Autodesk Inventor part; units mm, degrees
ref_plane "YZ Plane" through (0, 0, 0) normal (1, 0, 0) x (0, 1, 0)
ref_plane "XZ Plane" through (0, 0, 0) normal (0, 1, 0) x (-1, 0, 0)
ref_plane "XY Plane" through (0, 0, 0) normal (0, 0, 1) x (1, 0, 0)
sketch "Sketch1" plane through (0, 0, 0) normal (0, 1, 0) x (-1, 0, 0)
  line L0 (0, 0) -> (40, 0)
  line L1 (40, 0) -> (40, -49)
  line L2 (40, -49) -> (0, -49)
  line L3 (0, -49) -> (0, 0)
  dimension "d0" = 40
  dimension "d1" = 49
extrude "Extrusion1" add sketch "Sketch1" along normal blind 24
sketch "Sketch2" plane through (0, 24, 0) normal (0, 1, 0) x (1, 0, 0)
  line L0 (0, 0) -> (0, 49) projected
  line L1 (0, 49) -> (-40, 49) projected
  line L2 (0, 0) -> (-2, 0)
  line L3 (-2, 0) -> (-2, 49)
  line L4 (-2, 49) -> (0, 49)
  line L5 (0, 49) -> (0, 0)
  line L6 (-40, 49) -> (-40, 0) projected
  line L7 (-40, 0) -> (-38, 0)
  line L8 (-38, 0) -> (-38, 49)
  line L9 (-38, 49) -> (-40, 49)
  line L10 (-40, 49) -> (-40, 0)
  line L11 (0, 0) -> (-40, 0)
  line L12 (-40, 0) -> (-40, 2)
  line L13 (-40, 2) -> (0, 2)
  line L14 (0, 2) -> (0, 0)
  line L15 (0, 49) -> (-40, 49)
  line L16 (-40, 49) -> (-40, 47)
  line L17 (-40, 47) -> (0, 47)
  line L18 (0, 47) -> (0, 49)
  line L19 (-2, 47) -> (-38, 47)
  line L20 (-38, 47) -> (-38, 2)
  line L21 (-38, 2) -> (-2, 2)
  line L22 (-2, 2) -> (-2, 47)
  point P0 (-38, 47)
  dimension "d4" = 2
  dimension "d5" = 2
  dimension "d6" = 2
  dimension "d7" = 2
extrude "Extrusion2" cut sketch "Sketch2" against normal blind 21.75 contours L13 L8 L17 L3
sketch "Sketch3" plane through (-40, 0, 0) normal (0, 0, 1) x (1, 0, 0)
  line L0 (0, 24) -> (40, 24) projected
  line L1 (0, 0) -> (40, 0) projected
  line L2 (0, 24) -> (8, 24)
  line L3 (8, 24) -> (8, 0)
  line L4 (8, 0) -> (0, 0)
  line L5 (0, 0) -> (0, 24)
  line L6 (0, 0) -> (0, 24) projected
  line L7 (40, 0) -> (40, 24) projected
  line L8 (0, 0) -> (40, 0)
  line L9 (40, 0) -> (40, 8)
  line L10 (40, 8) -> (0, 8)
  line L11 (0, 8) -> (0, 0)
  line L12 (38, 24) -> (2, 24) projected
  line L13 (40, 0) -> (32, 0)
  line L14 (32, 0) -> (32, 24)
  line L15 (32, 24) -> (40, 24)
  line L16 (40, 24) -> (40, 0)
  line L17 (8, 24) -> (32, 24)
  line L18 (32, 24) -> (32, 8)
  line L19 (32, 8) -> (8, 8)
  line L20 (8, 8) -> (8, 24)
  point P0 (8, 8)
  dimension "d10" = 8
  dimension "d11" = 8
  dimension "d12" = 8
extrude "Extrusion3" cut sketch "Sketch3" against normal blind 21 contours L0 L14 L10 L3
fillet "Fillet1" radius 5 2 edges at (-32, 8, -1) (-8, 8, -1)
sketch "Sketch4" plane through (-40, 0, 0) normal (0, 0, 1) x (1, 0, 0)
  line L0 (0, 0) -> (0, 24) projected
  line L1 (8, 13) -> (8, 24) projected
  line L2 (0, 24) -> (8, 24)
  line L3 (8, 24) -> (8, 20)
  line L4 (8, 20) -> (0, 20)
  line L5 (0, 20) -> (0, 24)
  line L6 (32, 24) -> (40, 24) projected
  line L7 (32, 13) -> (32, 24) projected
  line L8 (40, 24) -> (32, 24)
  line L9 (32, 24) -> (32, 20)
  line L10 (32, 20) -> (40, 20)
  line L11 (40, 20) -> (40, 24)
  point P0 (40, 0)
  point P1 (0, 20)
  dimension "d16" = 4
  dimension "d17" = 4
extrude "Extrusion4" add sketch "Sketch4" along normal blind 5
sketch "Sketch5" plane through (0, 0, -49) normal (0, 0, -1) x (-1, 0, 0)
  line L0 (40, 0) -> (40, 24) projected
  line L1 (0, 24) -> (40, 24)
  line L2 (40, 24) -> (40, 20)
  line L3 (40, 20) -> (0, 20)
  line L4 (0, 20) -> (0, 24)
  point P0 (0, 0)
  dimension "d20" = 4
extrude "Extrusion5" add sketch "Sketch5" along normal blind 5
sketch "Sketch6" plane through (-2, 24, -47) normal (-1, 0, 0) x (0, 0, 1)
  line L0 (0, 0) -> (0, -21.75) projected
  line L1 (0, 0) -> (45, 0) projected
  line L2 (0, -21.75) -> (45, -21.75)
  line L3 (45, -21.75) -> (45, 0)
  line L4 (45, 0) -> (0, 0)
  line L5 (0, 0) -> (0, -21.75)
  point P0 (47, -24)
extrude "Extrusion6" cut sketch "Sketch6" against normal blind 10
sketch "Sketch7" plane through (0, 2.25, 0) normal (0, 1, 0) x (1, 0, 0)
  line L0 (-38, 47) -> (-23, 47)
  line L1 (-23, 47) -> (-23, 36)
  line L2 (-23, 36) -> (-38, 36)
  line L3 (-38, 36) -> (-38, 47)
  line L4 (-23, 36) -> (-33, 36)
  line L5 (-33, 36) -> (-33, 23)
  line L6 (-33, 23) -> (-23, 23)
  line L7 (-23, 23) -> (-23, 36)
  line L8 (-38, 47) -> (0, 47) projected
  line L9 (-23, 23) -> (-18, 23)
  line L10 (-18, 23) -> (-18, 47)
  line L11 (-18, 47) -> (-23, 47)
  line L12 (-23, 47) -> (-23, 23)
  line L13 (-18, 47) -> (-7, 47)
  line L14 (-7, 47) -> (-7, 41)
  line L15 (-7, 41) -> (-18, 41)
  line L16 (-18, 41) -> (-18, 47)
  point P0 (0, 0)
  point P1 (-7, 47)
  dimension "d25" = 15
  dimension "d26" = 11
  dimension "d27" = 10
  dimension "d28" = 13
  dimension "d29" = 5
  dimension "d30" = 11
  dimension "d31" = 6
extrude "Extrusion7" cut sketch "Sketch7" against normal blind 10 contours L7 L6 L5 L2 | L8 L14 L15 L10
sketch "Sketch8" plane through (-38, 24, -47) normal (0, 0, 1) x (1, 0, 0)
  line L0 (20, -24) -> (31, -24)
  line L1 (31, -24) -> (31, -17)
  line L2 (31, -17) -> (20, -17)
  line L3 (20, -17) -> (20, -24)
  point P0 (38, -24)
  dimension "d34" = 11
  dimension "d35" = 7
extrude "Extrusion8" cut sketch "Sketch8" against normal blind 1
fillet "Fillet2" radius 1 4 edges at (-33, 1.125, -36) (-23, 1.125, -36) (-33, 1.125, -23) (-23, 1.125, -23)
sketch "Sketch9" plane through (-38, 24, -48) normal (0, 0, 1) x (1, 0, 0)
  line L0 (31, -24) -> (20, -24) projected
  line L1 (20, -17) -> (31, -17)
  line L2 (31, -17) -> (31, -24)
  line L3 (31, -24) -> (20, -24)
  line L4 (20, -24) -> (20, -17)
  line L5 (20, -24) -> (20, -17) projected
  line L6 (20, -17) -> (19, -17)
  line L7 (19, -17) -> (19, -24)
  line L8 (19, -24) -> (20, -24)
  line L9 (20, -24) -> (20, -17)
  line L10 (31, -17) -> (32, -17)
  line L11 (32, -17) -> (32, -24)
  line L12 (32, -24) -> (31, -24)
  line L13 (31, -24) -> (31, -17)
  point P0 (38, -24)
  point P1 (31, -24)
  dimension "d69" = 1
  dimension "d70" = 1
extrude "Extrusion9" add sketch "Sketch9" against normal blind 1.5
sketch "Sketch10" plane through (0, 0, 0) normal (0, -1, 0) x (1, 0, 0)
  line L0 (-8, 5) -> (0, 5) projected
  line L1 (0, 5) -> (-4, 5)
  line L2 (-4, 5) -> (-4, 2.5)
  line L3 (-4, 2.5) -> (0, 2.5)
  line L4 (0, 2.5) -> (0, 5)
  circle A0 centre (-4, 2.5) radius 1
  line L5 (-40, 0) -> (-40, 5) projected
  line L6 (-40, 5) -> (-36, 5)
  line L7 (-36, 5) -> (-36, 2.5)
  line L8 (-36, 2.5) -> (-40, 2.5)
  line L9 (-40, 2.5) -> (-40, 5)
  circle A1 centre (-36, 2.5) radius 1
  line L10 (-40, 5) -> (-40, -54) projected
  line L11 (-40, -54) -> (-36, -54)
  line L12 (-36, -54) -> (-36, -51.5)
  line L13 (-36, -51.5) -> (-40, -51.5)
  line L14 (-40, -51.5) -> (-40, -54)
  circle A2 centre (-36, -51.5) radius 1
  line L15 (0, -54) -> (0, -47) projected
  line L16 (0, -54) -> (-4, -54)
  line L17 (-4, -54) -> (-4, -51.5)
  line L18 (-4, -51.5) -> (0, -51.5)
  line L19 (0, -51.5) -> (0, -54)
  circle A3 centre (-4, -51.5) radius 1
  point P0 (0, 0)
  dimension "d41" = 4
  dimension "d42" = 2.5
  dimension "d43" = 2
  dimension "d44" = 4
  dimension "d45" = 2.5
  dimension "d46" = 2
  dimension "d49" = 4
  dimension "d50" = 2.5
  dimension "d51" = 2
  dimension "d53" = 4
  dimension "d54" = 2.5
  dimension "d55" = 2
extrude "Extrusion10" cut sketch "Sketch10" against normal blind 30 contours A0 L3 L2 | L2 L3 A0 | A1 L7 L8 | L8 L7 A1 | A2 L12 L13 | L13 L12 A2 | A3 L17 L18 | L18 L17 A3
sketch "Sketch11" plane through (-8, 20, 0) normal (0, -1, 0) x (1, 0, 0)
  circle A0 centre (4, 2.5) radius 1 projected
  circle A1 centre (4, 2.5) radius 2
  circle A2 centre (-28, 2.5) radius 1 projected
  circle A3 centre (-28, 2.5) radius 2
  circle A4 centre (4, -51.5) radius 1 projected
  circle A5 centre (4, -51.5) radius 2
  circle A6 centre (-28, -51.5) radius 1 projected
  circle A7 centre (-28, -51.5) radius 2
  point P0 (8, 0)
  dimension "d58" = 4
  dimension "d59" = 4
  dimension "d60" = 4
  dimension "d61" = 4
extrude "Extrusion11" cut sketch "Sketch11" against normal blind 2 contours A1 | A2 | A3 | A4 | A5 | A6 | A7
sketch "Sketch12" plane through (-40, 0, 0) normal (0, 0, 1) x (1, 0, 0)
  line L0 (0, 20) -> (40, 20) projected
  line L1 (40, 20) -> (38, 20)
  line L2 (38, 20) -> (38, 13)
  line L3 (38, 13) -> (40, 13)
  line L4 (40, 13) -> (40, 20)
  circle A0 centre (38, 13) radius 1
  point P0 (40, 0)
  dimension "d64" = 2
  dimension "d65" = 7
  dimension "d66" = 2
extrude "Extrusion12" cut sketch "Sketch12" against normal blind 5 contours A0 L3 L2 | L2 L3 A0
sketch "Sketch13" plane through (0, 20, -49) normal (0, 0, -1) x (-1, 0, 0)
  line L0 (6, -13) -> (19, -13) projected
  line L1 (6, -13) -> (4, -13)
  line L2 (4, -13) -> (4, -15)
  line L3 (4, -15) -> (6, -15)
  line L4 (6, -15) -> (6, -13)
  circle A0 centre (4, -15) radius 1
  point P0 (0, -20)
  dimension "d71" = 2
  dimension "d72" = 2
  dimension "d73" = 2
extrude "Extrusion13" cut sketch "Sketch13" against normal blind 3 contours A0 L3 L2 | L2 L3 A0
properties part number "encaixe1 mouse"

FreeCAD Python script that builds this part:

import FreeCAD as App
import Part
import Sketcher

V = App.Vector


def edges_at(feature, points):
    """Names of the edges that pass closest to the given points."""
    edges = feature.Shape.Edges
    near = lambda p: min(range(len(edges)), key=lambda i: edges[i].distToShape(Part.Vertex(*p))[0])
    return sorted({f"Edge{near(p) + 1}" for p in points})


def add_polygon(sketch, points):
    """Adds a closed chain of lines whose ends are joined by coincident constraints."""
    first, n = sketch.GeometryCount, len(points)
    for a, b in zip(points, points[1:] + points[:1]):
        sketch.addGeometry(Part.LineSegment(App.Vector(*a, 0), App.Vector(*b, 0)), False)
    for i in range(n):
        sketch.addConstraint(Sketcher.Constraint("Coincident", first + i, 2, first + (i + 1) % n, 1))

doc = App.newDocument("Part")
body = doc.addObject("PartDesign::Body", "Body")

sketch1 = body.newObject("Sketcher::SketchObject", "Sketch")
sketch1.AttachmentSupport = (doc.getObject("XZ_Plane"), [""])
sketch1.MapMode = "FlatFace"
add_polygon(sketch1, [(-40, 0), (0, 0), (0, -49), (-40, -49)])
sketch1.addConstraint([
    Sketcher.Constraint("Horizontal", 0),
    Sketcher.Constraint("Vertical", 1),
    Sketcher.Constraint("Horizontal", 2),
    Sketcher.Constraint("Vertical", 3),
    Sketcher.Constraint("Coincident", 0, 2, -1, 1),
    Sketcher.Constraint("DistanceX", 0, 1, 0, 2, 40.0),
    Sketcher.Constraint("DistanceY", 1, 2, 1, 1, 49.0),
])
pad1 = body.newObject("PartDesign::Pad", "Pad")
pad1.Profile = sketch1
pad1.Length = 24
pad1.Reversed = True

sketch2 = body.newObject("Sketcher::SketchObject", "Sketch001")
sketch2.AttachmentSupport = (doc.getObject("XZ_Plane"), [""])
sketch2.MapMode = "FlatFace"
sketch2.AttachmentOffset = App.Placement(V(0, 0, -24), App.Rotation())
add_polygon(sketch2, [(-38, -2), (-2, -2), (-2, -47), (-38, -47)])
sketch2.addConstraint([
    Sketcher.Constraint("Horizontal", 0),
    Sketcher.Constraint("Vertical", 1),
    Sketcher.Constraint("Horizontal", 2),
    Sketcher.Constraint("Vertical", 3),
    Sketcher.Constraint("DistanceX", 0, 2, -1, 1, 2.0),
    Sketcher.Constraint("DistanceY", 0, 2, -1, 1, 2.0),
    Sketcher.Constraint("DistanceX", 0, 1, 0, 2, 36.0),
    Sketcher.Constraint("DistanceY", 1, 2, 1, 1, 45.0),
])
pocket1 = body.newObject("PartDesign::Pocket", "Pocket")
pocket1.Profile = sketch2
pocket1.Length = 21.75
pocket1.Reversed = True

sketch3 = body.newObject("Sketcher::SketchObject", "Sketch002")
sketch3.AttachmentSupport = (doc.getObject("XY_Plane"), [""])
sketch3.MapMode = "FlatFace"
add_polygon(sketch3, [(-8, 24), (-32, 24), (-32, 8), (-8, 8)])
sketch3.addConstraint([
    Sketcher.Constraint("Horizontal", 0),
    Sketcher.Constraint("Vertical", 1),
    Sketcher.Constraint("Horizontal", 2),
    Sketcher.Constraint("Vertical", 3),
    Sketcher.Constraint("DistanceY", -1, 1, 1, 2, 8.0),
    Sketcher.Constraint("DistanceX", 2, 2, -1, 1, 8.0),
    Sketcher.Constraint("DistanceX", 0, 2, 0, 1, 24.0),
    Sketcher.Constraint("DistanceY", 1, 2, 1, 1, 16.0),
])
pocket2 = body.newObject("PartDesign::Pocket", "Pocket001")
pocket2.Profile = sketch3
pocket2.Length = 21
doc.recompute()

fillet = body.newObject("PartDesign::Fillet", "Fillet")
fillet.Base = (pocket2, edges_at(pocket2, [(-32, 8, -1), (-8, 8, -1)]))
fillet.Radius = 5

sketch4 = body.newObject("Sketcher::SketchObject", "Sketch003")
sketch4.AttachmentSupport = (doc.getObject("XY_Plane"), [""])
sketch4.MapMode = "FlatFace"
add_polygon(sketch4, [(-40, 24), (-40, 20), (-32, 20), (-32, 24)])
add_polygon(sketch4, [(0, 24), (-8, 24), (-8, 20), (0, 20)])
sketch4.addConstraint([
    Sketcher.Constraint("Vertical", 0),
    Sketcher.Constraint("Horizontal", 1),
    Sketcher.Constraint("Vertical", 2),
    Sketcher.Constraint("Horizontal", 3),
    Sketcher.Constraint("Horizontal", 4),
    Sketcher.Constraint("Vertical", 5),
    Sketcher.Constraint("Horizontal", 6),
    Sketcher.Constraint("Vertical", 7),
    Sketcher.Constraint("PointOnObject", 6, 2, -2),
    Sketcher.Constraint("Horizontal", 3, 2, 4, 2),
    Sketcher.Constraint("Horizontal", 1, 2, 5, 2),
    Sketcher.Constraint("Equal", 3, 4),
    Sketcher.Constraint("DistanceY", 0, 2, 0, 1, 4.0),
    Sketcher.Constraint("DistanceX", 1, 1, 1, 2, 8.0),
    Sketcher.Constraint("DistanceX", 0, 2, -1, 1, 40.0),
    Sketcher.Constraint("DistanceY", -1, 1, 0, 2, 20.0),
])
pad2 = body.newObject("PartDesign::Pad", "Pad001")
pad2.Profile = sketch4
pad2.Length = 5

sketch5 = body.newObject("Sketcher::SketchObject", "Sketch004")
sketch5.AttachmentSupport = (doc.getObject("XY_Plane"), [""])
sketch5.MapMode = "FlatFace"
sketch5.AttachmentOffset = App.Placement(V(0, 0, -49), App.Rotation())
add_polygon(sketch5, [(0, 20), (-40, 20), (-40, 24), (0, 24)])
sketch5.addConstraint([
    Sketcher.Constraint("Horizontal", 0),
    Sketcher.Constraint("Vertical", 1),
    Sketcher.Constraint("Horizontal", 2),
    Sketcher.Constraint("Vertical", 3),
    Sketcher.Constraint("PointOnObject", 2, 2, -2),
    Sketcher.Constraint("DistanceY", 1, 1, 1, 2, 4.0),
    Sketcher.Constraint("DistanceX", 0, 2, 0, 1, 40.0),
    Sketcher.Constraint("DistanceY", -1, 1, 0, 2, 20.0),
])
pad3 = body.newObject("PartDesign::Pad", "Pad002")
pad3.Profile = sketch5
pad3.Length = 5
pad3.Reversed = True

sketch6 = body.newObject("Sketcher::SketchObject", "Sketch005")
sketch6.AttachmentSupport = (doc.getObject("YZ_Plane"), [""])
sketch6.MapMode = "FlatFace"
sketch6.AttachmentOffset = App.Placement(V(0, 0, -2), App.Rotation())
add_polygon(sketch6, [(24, -2), (24, -47), (2, -47), (2, -2)])
sketch6.addConstraint([
    Sketcher.Constraint("Vertical", 0),
    Sketcher.Constraint("Horizontal", 1),
    Sketcher.Constraint("Vertical", 2),
    Sketcher.Constraint("Horizontal", 3),
    Sketcher.Constraint("DistanceY", 0, 2, 0, 1, 45.0),
    Sketcher.Constraint("DistanceX", -1, 1, 0, 2, 24.0),
    Sketcher.Constraint("DistanceY", 0, 2, -1, 1, 47.0),
    Sketcher.Constraint("DistanceX", 1, 2, 1, 1, 21.75),
])
pocket3 = body.newObject("PartDesign::Pocket", "Pocket002")
pocket3.Profile = sketch6
pocket3.Length = 10
pocket3.Reversed = True

sketch7 = body.newObject("Sketcher::SketchObject", "Sketch006")
sketch7.AttachmentSupport = (doc.getObject("XZ_Plane"), [""])
sketch7.MapMode = "FlatFace"
sketch7.AttachmentOffset = App.Placement(V(0, 0, -2.25), App.Rotation())
add_polygon(sketch7, [(-23, -23), (-23, -36), (-33, -36), (-33, -23)])
add_polygon(sketch7, [(-7, -47), (-18, -47), (-18, -41), (-7, -41)])
sketch7.addConstraint([
    Sketcher.Constraint("Vertical", 0),
    Sketcher.Constraint("Horizontal", 1),
    Sketcher.Constraint("Vertical", 2),
    Sketcher.Constraint("Horizontal", 3),
    Sketcher.Constraint("Horizontal", 4),
    Sketcher.Constraint("Vertical", 5),
    Sketcher.Constraint("Horizontal", 6),
    Sketcher.Constraint("Vertical", 7),
    Sketcher.Constraint("DistanceX", 1, 2, 1, 1, 10.0),
    Sketcher.Constraint("DistanceX", 4, 2, 4, 1, 11.0),
    Sketcher.Constraint("DistanceY", 0, 2, 0, 1, 13.0),
    Sketcher.Constraint("DistanceY", 5, 1, 5, 2, 6.0),
    Sketcher.Constraint("DistanceX", 0, 2, 4, 2, 5.0),
    Sketcher.Constraint("DistanceY", 4, 2, 0, 2, 11.0),
    Sketcher.Constraint("DistanceX", 0, 2, -1, 1, 23.0),
    Sketcher.Constraint("DistanceY", 0, 2, -1, 1, 36.0),
])
pocket4 = body.newObject("PartDesign::Pocket", "Pocket003")
pocket4.Profile = sketch7
pocket4.Length = 10
pocket4.Reversed = True

sketch8 = body.newObject("Sketcher::SketchObject", "Sketch007")
sketch8.AttachmentSupport = (doc.getObject("XY_Plane"), [""])
sketch8.MapMode = "FlatFace"
sketch8.AttachmentOffset = App.Placement(V(0, 0, -47), App.Rotation())
add_polygon(sketch8, [(-18, 7), (-18, 0), (-7, 0), (-7, 7)])
sketch8.addConstraint([
    Sketcher.Constraint("Vertical", 0),
    Sketcher.Constraint("Horizontal", 1),
    Sketcher.Constraint("Vertical", 2),
    Sketcher.Constraint("Horizontal", 3),
    Sketcher.Constraint("PointOnObject", 0, 2, -1),
    Sketcher.Constraint("DistanceX", 1, 1, 1, 2, 11.0),
    Sketcher.Constraint("DistanceY", 0, 2, 0, 1, 7.0),
    Sketcher.Constraint("DistanceX", 1, 2, -1, 1, 7.0),
])
pocket5 = body.newObject("PartDesign::Pocket", "Pocket004")
pocket5.Profile = sketch8
pocket5.Length = 1
doc.recompute()

fillet2 = body.newObject("PartDesign::Fillet", "Fillet001")
fillet2.Base = (pocket5, edges_at(pocket5, [
    (-33, 1.125, -36),
    (-23, 1.125, -36),
    (-33, 1.125, -23),
    (-23, 1.125, -23),
]))
fillet2.Radius = 1

sketch9 = body.newObject("Sketcher::SketchObject", "Sketch008")
sketch9.AttachmentSupport = (doc.getObject("XY_Plane"), [""])
sketch9.MapMode = "FlatFace"
sketch9.AttachmentOffset = App.Placement(V(0, 0, -48), App.Rotation())
add_polygon(sketch9, [(-6, 0), (-6, 7), (-19, 7), (-19, 0)])
sketch9.addConstraint([
    Sketcher.Constraint("Vertical", 0),
    Sketcher.Constraint("Horizontal", 1),
    Sketcher.Constraint("Vertical", 2),
    Sketcher.Constraint("Horizontal", 3),
    Sketcher.Constraint("PointOnObject", 2, 2, -1),
    Sketcher.Constraint("DistanceX", 1, 2, 1, 1, 13.0),
    Sketcher.Constraint("DistanceY", 0, 1, 0, 2, 7.0),
    Sketcher.Constraint("DistanceX", 0, 2, -1, 1, 6.0),
])
pad4 = body.newObject("PartDesign::Pad", "Pad003")
pad4.Profile = sketch9
pad4.Length = 1.5
pad4.Reversed = True

sketch10 = body.newObject("Sketcher::SketchObject", "Sketch009")
sketch10.AttachmentSupport = (doc.getObject("XZ_Plane"), [""])
sketch10.MapMode = "FlatFace"
sketch10.addGeometry([
    Part.Circle(V(-4, 2.5, 0), V(0, 0, 1), 1),
    Part.Circle(V(-36, 2.5, 0), V(0, 0, 1), 1),
    Part.Circle(V(-36, -51.5, 0), V(0, 0, 1), 1),
    Part.Circle(V(-4, -51.5, 0), V(0, 0, 1), 1),
], False)
sketch10.addConstraint([
    Sketcher.Constraint("Equal", 0, 1),
    Sketcher.Constraint("Equal", 1, 2),
    Sketcher.Constraint("Equal", 2, 3),
    Sketcher.Constraint("Horizontal", 0, 3, 1, 3),
    Sketcher.Constraint("Horizontal", 2, 3, 3, 3),
    Sketcher.Constraint("Vertical", 1, 3, 2, 3),
    Sketcher.Constraint("Vertical", 0, 3, 3, 3),
    Sketcher.Constraint("Diameter", 0, 2.0),
    Sketcher.Constraint("DistanceX", 0, 3, -1, 1, 4.0),
    Sketcher.Constraint("DistanceY", -1, 1, 0, 3, 2.5),
    Sketcher.Constraint("DistanceX", 1, 3, -1, 1, 36.0),
    Sketcher.Constraint("DistanceY", 2, 3, 1, 3, 54.0),
])
pocket6 = body.newObject("PartDesign::Pocket", "Pocket005")
pocket6.Profile = sketch10
pocket6.Length = 30

sketch11 = body.newObject("Sketcher::SketchObject", "Sketch010")
sketch11.AttachmentSupport = (doc.getObject("XZ_Plane"), [""])
sketch11.MapMode = "FlatFace"
sketch11.AttachmentOffset = App.Placement(V(0, 0, -20), App.Rotation())
sketch11.addGeometry([
    Part.Circle(V(-4, 2.5, 0), V(0, 0, 1), 2),
    Part.Circle(V(-4, 2.5, 0), V(0, 0, 1), 1),
    Part.Circle(V(-36, 2.5, 0), V(0, 0, 1), 2),
    Part.Circle(V(-4, -51.5, 0), V(0, 0, 1), 2),
    Part.Circle(V(-36, -51.5, 0), V(0, 0, 1), 2),
], False)
sketch11.addConstraint([
    Sketcher.Constraint("Coincident", 1, 3, 0, 3),
    Sketcher.Constraint("Equal", 0, 2),
    Sketcher.Constraint("Equal", 2, 3),
    Sketcher.Constraint("Equal", 3, 4),
    Sketcher.Constraint("Horizontal", 1, 3, 2, 3),
    Sketcher.Constraint("Horizontal", 3, 3, 4, 3),
    Sketcher.Constraint("Vertical", 1, 3, 3, 3),
    Sketcher.Constraint("Vertical", 2, 3, 4, 3),
    Sketcher.Constraint("Diameter", 0, 4.0),
    Sketcher.Constraint("Diameter", 1, 2.0),
    Sketcher.Constraint("DistanceX", 0, 3, -1, 1, 4.0),
    Sketcher.Constraint("DistanceX", 2, 3, -1, 1, 36.0),
    Sketcher.Constraint("DistanceY", 3, 3, 0, 3, 54.0),
    Sketcher.Constraint("DistanceY", -1, 1, 0, 3, 2.5),
])
pocket7 = body.newObject("PartDesign::Pocket", "Pocket006")
pocket7.Profile = sketch11
pocket7.Length = 2

sketch12 = body.newObject("Sketcher::SketchObject", "Sketch011")
sketch12.AttachmentSupport = (doc.getObject("XY_Plane"), [""])
sketch12.MapMode = "FlatFace"
sketch12.addGeometry(Part.Circle(V(-2, 13, 0), V(0, 0, 1), 1), False)
sketch12.addConstraint([
    Sketcher.Constraint("Diameter", 0, 2.0),
    Sketcher.Constraint("DistanceX", 0, 3, -1, 1, 2.0),
    Sketcher.Constraint("DistanceY", -1, 1, 0, 3, 13.0),
])
pocket8 = body.newObject("PartDesign::Pocket", "Pocket007")
pocket8.Profile = sketch12
pocket8.Length = 5

sketch13 = body.newObject("Sketcher::SketchObject", "Sketch012")
sketch13.AttachmentSupport = (doc.getObject("XY_Plane"), [""])
sketch13.MapMode = "FlatFace"
sketch13.AttachmentOffset = App.Placement(V(0, 0, -49), App.Rotation())
sketch13.addGeometry(Part.Circle(V(-4, 5, 0), V(0, 0, 1), 1), False)
sketch13.addConstraint([
    Sketcher.Constraint("Diameter", 0, 2.0),
    Sketcher.Constraint("DistanceX", 0, 3, -1, 1, 4.0),
    Sketcher.Constraint("DistanceY", -1, 1, 0, 3, 5.0),
])
pocket9 = body.newObject("PartDesign::Pocket", "Pocket008")
pocket9.Profile = sketch13
pocket9.Length = 3
pocket9.Reversed = True

doc.recompute()
